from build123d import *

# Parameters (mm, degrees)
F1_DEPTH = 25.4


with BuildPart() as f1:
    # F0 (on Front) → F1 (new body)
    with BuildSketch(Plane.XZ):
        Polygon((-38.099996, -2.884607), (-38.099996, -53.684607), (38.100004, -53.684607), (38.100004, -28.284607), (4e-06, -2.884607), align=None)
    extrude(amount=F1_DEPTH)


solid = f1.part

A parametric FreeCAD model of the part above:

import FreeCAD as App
import Part
import Sketcher
Q = App.Units.Quantity

doc = App.newDocument("Part")
params = doc.addObject("Spreadsheet::Sheet", "Params")
for row, (alias, value) in enumerate([
    ("sketch1_width", "3 in"),
    ("sketch1_height", "2 in"),
    ("sketch1_height2", "1 in"),
    ("sketch1_width2", "1.5 in"),
    ("pad1_length", "1 in"),
], start=1):
    params.set(f"A{row}", alias)
    params.set(f"B{row}", "=" + value)
    params.setAlias(f"B{row}", alias)

body = doc.addObject("PartDesign::Body", "Body")

# Sketch on XZ plane
sketch1 = doc.addObject("Sketcher::SketchObject", "Sketch")
body.addObject(sketch1)
sketch1.AttachmentSupport = (doc.XZ_Plane, [""])
sketch1.MapMode = "FlatFace"
sketch1.addGeometry([
    Part.LineSegment(App.Vector(-38, -3, 0), App.Vector(-38, -54, 0)),  # 0
    Part.LineSegment(App.Vector(-38, -54, 0), App.Vector(38, -54, 0)),  # 1
    Part.LineSegment(App.Vector(38, -54, 0), App.Vector(38, -28, 0)),  # 2
    Part.LineSegment(App.Vector(38, -28, 0), App.Vector(0, -3, 0)),  # 3
    Part.LineSegment(App.Vector(0, -3, 0), App.Vector(-38, -3, 0)),  # 4
], False)
sketch1.addConstraint([
    Sketcher.Constraint("Coincident", 0, 2, 1, 1),
    Sketcher.Constraint("Coincident", 1, 2, 2, 1),
    Sketcher.Constraint("Coincident", 2, 2, 3, 1),
    Sketcher.Constraint("Coincident", 3, 2, 4, 1),
    Sketcher.Constraint("Coincident", 4, 2, 0, 1),
    Sketcher.Constraint("Vertical", 0),
    Sketcher.Constraint("Horizontal", 1),
    Sketcher.Constraint("Vertical", 2),
    Sketcher.Constraint("Horizontal", 4),
    Sketcher.Constraint("DistanceX", 1, 1, 1, 2, Q("3 in")),
    Sketcher.Constraint("DistanceY", 0, 2, 0, 1, Q("2 in")),
    Sketcher.Constraint("DistanceY", 2, 1, 2, 2, Q("1 in")),
    Sketcher.Constraint("DistanceX", 4, 2, 4, 1, Q("1.5 in")),
    Sketcher.Constraint("DistanceX", 0, 2, -1, 1, Q("1.4999998 in")),
    Sketcher.Constraint("DistanceY", 0, 2, -1, 1, Q("53.684607 mm")),
])
sketch1.setExpression("Constraints[9]", "Params.sketch1_width")
sketch1.setExpression("Constraints[10]", "Params.sketch1_height")
sketch1.setExpression("Constraints[11]", "Params.sketch1_height2")
sketch1.setExpression("Constraints[12]", "Params.sketch1_width2")
pad1 = doc.addObject("PartDesign::Pad", "Pad")
body.addObject(pad1)
pad1.Profile = sketch1
pad1.setExpression("Length", "Params.pad1_length")

doc.recompute()
